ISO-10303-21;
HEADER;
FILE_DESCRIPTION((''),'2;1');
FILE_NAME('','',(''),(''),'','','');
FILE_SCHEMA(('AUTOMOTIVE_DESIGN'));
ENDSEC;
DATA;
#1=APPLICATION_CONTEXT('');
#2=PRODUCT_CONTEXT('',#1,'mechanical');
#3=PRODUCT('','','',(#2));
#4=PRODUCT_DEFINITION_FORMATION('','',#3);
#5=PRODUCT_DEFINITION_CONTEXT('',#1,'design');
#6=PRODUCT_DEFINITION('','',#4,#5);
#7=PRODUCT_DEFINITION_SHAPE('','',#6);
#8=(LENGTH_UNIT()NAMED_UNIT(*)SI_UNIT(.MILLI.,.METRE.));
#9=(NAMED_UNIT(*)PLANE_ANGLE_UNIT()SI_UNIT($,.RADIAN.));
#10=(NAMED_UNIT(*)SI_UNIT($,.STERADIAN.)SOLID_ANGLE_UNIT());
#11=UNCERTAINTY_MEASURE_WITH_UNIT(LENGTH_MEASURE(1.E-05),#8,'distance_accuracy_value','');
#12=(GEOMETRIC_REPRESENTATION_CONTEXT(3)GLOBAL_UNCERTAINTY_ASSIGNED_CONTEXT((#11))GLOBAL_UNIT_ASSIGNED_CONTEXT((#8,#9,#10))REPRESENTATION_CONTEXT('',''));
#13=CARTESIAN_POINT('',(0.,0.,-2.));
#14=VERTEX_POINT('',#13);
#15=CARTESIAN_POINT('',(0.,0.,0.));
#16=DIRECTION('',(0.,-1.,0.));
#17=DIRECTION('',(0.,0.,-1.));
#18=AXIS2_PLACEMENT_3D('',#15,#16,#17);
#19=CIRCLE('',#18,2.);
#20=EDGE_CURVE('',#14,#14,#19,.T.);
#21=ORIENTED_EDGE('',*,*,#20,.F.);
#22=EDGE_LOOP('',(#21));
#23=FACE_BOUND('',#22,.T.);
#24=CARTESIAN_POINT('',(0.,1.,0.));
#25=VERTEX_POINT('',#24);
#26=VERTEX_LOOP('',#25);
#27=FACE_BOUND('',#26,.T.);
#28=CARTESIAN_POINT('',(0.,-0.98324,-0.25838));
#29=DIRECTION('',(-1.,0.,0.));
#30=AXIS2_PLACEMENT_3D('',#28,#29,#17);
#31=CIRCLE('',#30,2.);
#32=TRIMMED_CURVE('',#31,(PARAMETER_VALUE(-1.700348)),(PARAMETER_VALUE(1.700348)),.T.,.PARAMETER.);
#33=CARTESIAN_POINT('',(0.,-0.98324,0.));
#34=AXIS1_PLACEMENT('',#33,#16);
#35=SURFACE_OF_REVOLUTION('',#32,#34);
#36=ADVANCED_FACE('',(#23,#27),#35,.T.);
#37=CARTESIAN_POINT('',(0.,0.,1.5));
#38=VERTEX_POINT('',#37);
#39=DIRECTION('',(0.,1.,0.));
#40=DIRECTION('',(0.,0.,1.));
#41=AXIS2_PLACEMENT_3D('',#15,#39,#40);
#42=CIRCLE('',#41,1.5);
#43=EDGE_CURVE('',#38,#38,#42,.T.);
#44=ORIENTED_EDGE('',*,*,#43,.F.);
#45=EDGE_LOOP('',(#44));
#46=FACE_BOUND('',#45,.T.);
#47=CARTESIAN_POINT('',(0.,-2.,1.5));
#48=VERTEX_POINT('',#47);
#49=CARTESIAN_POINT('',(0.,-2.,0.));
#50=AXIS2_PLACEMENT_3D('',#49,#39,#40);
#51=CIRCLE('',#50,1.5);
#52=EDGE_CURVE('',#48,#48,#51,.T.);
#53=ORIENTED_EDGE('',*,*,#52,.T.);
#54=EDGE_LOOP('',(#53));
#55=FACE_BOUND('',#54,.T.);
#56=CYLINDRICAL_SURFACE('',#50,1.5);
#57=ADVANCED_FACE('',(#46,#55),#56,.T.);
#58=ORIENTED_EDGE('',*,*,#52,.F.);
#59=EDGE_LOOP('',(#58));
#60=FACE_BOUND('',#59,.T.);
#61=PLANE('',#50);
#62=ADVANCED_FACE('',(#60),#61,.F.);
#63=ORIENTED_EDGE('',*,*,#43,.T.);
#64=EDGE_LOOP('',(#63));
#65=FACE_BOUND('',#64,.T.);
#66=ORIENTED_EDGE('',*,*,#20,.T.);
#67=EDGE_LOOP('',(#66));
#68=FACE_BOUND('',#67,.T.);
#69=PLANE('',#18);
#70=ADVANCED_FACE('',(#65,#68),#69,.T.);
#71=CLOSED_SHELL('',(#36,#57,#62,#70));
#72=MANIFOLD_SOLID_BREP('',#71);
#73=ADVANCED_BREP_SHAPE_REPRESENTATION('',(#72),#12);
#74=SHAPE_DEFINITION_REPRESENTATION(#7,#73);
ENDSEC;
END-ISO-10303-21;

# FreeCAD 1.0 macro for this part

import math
import FreeCAD as App
import Part
import Sketcher

doc = App.newDocument("Part")
body = doc.addObject("PartDesign::Body", "Body")

# Sketch on XZ plane
sketch1 = body.newObject("Sketcher::SketchObject", "Sketch")
sketch1.AttachmentSupport = (doc.getObject("XZ_Plane"), [""])
sketch1.MapMode = "FlatFace"
sketch1.addGeometry(Part.Circle(App.Vector(0, 0, 0), App.Vector(0, 0, 1), 1.5), False)
sketch1.addConstraint([
    Sketcher.Constraint("Coincident", 0, 3, -1, 1),
    Sketcher.Constraint("Diameter", 0, 3.0),
])
pad1 = body.newObject("PartDesign::Pad", "Pad")
pad1.Profile = sketch1
pad1.Length = 2

# Sketch on XY plane
sketch2 = body.newObject("Sketcher::SketchObject", "Sketch001")
sketch2.AttachmentSupport = (doc.getObject("XY_Plane"), [""])
sketch2.MapMode = "FlatFace"
sketch2.addGeometry([
    Part.LineSegment(App.Vector(0, 0, 0), App.Vector(2, 0, 0)),
    Part.ArcOfCircle(Part.Circle(App.Vector(0.25838, -0.98324, 0), App.Vector(0, 0, 1), 2), math.radians(29.447105), math.radians(97.422792)),
    Part.LineSegment(App.Vector(0, 1, 0), App.Vector(0, 0, 0)),
], False)
sketch2.addConstraint([
    Sketcher.Constraint("Coincident", 0, 2, 1, 1),
    Sketcher.Constraint("Coincident", 1, 2, 2, 1),
    Sketcher.Constraint("Coincident", 2, 2, 0, 1),
    Sketcher.Constraint("Horizontal", 0),
    Sketcher.Constraint("Vertical", 2),
    Sketcher.Constraint("Coincident", 2, 2, -1, 1),
    Sketcher.Constraint("Radius", 1, 2.0),
    Sketcher.Constraint("DistanceX", 0, 1, 0, 2, 2.0),
    Sketcher.Constraint("DistanceY", 2, 2, 2, 1, 1.0),
])
revolution = body.newObject("PartDesign::Revolution", "Revolution")
revolution.Profile = sketch2
revolution.ReferenceAxis = (sketch2, ["V_Axis"])
revolution.Angle = 360

doc.recompute()
